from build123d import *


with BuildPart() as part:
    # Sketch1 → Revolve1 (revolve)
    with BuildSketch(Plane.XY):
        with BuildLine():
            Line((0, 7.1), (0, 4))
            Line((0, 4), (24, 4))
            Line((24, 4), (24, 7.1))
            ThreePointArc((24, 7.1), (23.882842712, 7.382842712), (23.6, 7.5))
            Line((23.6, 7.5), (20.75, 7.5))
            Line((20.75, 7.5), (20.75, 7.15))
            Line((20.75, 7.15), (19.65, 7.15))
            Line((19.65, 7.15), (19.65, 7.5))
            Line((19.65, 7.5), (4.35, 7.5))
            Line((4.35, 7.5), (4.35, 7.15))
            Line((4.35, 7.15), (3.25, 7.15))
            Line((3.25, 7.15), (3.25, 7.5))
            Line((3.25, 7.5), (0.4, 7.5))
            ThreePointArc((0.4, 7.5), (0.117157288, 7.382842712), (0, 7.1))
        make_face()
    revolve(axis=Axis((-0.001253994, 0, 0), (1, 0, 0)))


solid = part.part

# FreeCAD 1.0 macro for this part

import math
import FreeCAD as App
import Part
import Sketcher

doc = App.newDocument("Part")
params = doc.addObject("Spreadsheet::Sheet", "Params")
for row, (alias, value) in enumerate([
    ("sketch1_radius", "0.4 mm"),
    ("sketch1_width", "24 mm"),
    ("sketch1_width2", "1.1 mm"),
    ("sketch1_width3", "15.3 mm"),
    ("sketch1_height", "3.1 mm"),
    ("revolution_angle", "360 deg"),
], start=1):
    params.set(f"A{row}", alias)
    params.set(f"B{row}", "=" + value)
    params.setAlias(f"B{row}", alias)

body = doc.addObject("PartDesign::Body", "Body")

sketch1 = body.newObject("Sketcher::SketchObject", "Sketch")
sketch1.AttachmentSupport = (doc.getObject("XY_Plane"), [""])
sketch1.MapMode = "FlatFace"
sketch1.addGeometry([
    Part.LineSegment(App.Vector(0, 7.1, 0), App.Vector(0, 4, 0)),
    Part.LineSegment(App.Vector(0, 4, 0), App.Vector(24, 4, 0)),
    Part.LineSegment(App.Vector(24, 4, 0), App.Vector(24, 7.1, 0)),
    Part.ArcOfCircle(Part.Circle(App.Vector(23.6, 7.1, 0), App.Vector(0, 0, 1), 0.4), math.radians(0), math.radians(90)),
    Part.LineSegment(App.Vector(23.6, 7.5, 0), App.Vector(20.75, 7.5, 0)),
    Part.LineSegment(App.Vector(20.75, 7.5, 0), App.Vector(20.75, 7.15, 0)),
    Part.LineSegment(App.Vector(20.75, 7.15, 0), App.Vector(19.65, 7.15, 0)),
    Part.LineSegment(App.Vector(19.65, 7.15, 0), App.Vector(19.65, 7.5, 0)),
    Part.LineSegment(App.Vector(19.65, 7.5, 0), App.Vector(4.35, 7.5, 0)),
    Part.LineSegment(App.Vector(4.35, 7.5, 0), App.Vector(4.35, 7.15, 0)),
    Part.LineSegment(App.Vector(4.35, 7.15, 0), App.Vector(3.25, 7.15, 0)),
    Part.LineSegment(App.Vector(3.25, 7.15, 0), App.Vector(3.25, 7.5, 0)),
    Part.LineSegment(App.Vector(3.25, 7.5, 0), App.Vector(0.4, 7.5, 0)),
    Part.ArcOfCircle(Part.Circle(App.Vector(0.4, 7.1, 0), App.Vector(0, 0, 1), 0.4), math.radians(90), math.radians(180)),
], False)
sketch1.addConstraint([
    Sketcher.Constraint("Coincident", 0, 2, 1, 1),
    Sketcher.Constraint("Coincident", 1, 2, 2, 1),
    Sketcher.Constraint("Tangent", 2, 2, 3, 1),
    Sketcher.Constraint("Tangent", 3, 2, 4, 1),
    Sketcher.Constraint("Coincident", 4, 2, 5, 1),
    Sketcher.Constraint("Coincident", 5, 2, 6, 1),
    Sketcher.Constraint("Coincident", 6, 2, 7, 1),
    Sketcher.Constraint("Coincident", 7, 2, 8, 1),
    Sketcher.Constraint("Coincident", 8, 2, 9, 1),
    Sketcher.Constraint("Coincident", 9, 2, 10, 1),
    Sketcher.Constraint("Coincident", 10, 2, 11, 1),
    Sketcher.Constraint("Coincident", 11, 2, 12, 1),
    Sketcher.Constraint("Tangent", 12, 2, 13, 1),
    Sketcher.Constraint("Tangent", 13, 2, 0, 1),
    Sketcher.Constraint("Vertical", 0),
    Sketcher.Constraint("Horizontal", 1),
    Sketcher.Constraint("Vertical", 2),
    Sketcher.Constraint("Horizontal", 4),
    Sketcher.Constraint("Vertical", 5),
    Sketcher.Constraint("Horizontal", 6),
    Sketcher.Constraint("Vertical", 7),
    Sketcher.Constraint("Horizontal", 8),
    Sketcher.Constraint("Vertical", 9),
    Sketcher.Constraint("Horizontal", 10),
    Sketcher.Constraint("Vertical", 11),
    Sketcher.Constraint("Horizontal", 12),
    Sketcher.Constraint("Equal", 3, 13),
    Sketcher.Constraint("PointOnObject", 0, 2, -2),
    Sketcher.Constraint("Horizontal", 3, 3, 13, 3),
    Sketcher.Constraint("Horizontal", 4, 2, 7, 2),
    Sketcher.Constraint("Horizontal", 6, 2, 9, 2),
    Sketcher.Constraint("Equal", 6, 10),
    Sketcher.Constraint("Equal", 4, 12),
    Sketcher.Constraint("Radius", 3, 0.4),
    Sketcher.Constraint("DistanceX", 1, 1, 1, 2, 24.0),
    Sketcher.Constraint("DistanceX", 6, 2, 6, 1, 1.1),
    Sketcher.Constraint("DistanceX", 8, 2, 8, 1, 15.3),
    Sketcher.Constraint("DistanceY", 0, 2, 0, 1, 3.1),
    Sketcher.Constraint("DistanceY", -1, 1, 0, 2, 4.0),
    Sketcher.Constraint("DistanceY", 5, 2, 5, 1, 0.35),
])
sketch1.setExpression("Constraints[33]", "Params.sketch1_radius")
sketch1.setExpression("Constraints[34]", "Params.sketch1_width")
sketch1.setExpression("Constraints[35]", "Params.sketch1_width2")
sketch1.setExpression("Constraints[36]", "Params.sketch1_width3")
sketch1.setExpression("Constraints[37]", "Params.sketch1_height")
revolution = body.newObject("PartDesign::Revolution", "Revolution")
revolution.Profile = sketch1
revolution.ReferenceAxis = (sketch1, ["H_Axis"])
revolution.setExpression("Angle", "Params.revolution_angle")

doc.recompute()
